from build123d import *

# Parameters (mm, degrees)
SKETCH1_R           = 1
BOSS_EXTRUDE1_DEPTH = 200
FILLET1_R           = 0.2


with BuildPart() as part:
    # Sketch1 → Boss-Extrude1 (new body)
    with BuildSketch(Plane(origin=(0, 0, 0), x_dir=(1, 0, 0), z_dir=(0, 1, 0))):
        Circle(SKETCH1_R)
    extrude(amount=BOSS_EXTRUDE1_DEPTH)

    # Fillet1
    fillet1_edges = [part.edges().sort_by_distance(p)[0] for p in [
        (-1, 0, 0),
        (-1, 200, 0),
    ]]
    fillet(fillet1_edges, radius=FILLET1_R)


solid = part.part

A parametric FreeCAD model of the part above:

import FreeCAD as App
import Part
import Sketcher
from FreeCAD import Vector


def edges_at(feature, points):
    """Names of the edges that pass closest to the given points."""
    edges = feature.Shape.Edges
    near = lambda p: min(range(len(edges)), key=lambda i: edges[i].distToShape(Part.Vertex(*p))[0])
    return sorted({f"Edge{near(p) + 1}" for p in points})

doc = App.newDocument("Part")
body = doc.addObject("PartDesign::Body", "Body")

# Sketch on XZ plane
sketch1 = doc.addObject("Sketcher::SketchObject", "Sketch")
body.addObject(sketch1)
sketch1.AttachmentSupport = (doc.XZ_Plane, [""])
sketch1.MapMode = "FlatFace"
sketch1.addGeometry(Part.Circle(Vector(0, 0, 0), Vector(0, 0, 1), 1), False)
sketch1.addConstraint([
    Sketcher.Constraint("Coincident", 0, 3, -1, 1),
    Sketcher.Constraint("Diameter", 0, 2.0),
])
pad1 = doc.addObject("PartDesign::Pad", "Pad")
body.addObject(pad1)
pad1.Profile = sketch1
pad1.Length = 200
pad1.Reversed = True
doc.recompute()

fillet = doc.addObject("PartDesign::Fillet", "Fillet")
body.addObject(fillet)
fillet.Base = (pad1, edges_at(pad1, [(-1, 0, 0), (-1, 200, 0)]))
fillet.Radius = 0.2

doc.recompute()
